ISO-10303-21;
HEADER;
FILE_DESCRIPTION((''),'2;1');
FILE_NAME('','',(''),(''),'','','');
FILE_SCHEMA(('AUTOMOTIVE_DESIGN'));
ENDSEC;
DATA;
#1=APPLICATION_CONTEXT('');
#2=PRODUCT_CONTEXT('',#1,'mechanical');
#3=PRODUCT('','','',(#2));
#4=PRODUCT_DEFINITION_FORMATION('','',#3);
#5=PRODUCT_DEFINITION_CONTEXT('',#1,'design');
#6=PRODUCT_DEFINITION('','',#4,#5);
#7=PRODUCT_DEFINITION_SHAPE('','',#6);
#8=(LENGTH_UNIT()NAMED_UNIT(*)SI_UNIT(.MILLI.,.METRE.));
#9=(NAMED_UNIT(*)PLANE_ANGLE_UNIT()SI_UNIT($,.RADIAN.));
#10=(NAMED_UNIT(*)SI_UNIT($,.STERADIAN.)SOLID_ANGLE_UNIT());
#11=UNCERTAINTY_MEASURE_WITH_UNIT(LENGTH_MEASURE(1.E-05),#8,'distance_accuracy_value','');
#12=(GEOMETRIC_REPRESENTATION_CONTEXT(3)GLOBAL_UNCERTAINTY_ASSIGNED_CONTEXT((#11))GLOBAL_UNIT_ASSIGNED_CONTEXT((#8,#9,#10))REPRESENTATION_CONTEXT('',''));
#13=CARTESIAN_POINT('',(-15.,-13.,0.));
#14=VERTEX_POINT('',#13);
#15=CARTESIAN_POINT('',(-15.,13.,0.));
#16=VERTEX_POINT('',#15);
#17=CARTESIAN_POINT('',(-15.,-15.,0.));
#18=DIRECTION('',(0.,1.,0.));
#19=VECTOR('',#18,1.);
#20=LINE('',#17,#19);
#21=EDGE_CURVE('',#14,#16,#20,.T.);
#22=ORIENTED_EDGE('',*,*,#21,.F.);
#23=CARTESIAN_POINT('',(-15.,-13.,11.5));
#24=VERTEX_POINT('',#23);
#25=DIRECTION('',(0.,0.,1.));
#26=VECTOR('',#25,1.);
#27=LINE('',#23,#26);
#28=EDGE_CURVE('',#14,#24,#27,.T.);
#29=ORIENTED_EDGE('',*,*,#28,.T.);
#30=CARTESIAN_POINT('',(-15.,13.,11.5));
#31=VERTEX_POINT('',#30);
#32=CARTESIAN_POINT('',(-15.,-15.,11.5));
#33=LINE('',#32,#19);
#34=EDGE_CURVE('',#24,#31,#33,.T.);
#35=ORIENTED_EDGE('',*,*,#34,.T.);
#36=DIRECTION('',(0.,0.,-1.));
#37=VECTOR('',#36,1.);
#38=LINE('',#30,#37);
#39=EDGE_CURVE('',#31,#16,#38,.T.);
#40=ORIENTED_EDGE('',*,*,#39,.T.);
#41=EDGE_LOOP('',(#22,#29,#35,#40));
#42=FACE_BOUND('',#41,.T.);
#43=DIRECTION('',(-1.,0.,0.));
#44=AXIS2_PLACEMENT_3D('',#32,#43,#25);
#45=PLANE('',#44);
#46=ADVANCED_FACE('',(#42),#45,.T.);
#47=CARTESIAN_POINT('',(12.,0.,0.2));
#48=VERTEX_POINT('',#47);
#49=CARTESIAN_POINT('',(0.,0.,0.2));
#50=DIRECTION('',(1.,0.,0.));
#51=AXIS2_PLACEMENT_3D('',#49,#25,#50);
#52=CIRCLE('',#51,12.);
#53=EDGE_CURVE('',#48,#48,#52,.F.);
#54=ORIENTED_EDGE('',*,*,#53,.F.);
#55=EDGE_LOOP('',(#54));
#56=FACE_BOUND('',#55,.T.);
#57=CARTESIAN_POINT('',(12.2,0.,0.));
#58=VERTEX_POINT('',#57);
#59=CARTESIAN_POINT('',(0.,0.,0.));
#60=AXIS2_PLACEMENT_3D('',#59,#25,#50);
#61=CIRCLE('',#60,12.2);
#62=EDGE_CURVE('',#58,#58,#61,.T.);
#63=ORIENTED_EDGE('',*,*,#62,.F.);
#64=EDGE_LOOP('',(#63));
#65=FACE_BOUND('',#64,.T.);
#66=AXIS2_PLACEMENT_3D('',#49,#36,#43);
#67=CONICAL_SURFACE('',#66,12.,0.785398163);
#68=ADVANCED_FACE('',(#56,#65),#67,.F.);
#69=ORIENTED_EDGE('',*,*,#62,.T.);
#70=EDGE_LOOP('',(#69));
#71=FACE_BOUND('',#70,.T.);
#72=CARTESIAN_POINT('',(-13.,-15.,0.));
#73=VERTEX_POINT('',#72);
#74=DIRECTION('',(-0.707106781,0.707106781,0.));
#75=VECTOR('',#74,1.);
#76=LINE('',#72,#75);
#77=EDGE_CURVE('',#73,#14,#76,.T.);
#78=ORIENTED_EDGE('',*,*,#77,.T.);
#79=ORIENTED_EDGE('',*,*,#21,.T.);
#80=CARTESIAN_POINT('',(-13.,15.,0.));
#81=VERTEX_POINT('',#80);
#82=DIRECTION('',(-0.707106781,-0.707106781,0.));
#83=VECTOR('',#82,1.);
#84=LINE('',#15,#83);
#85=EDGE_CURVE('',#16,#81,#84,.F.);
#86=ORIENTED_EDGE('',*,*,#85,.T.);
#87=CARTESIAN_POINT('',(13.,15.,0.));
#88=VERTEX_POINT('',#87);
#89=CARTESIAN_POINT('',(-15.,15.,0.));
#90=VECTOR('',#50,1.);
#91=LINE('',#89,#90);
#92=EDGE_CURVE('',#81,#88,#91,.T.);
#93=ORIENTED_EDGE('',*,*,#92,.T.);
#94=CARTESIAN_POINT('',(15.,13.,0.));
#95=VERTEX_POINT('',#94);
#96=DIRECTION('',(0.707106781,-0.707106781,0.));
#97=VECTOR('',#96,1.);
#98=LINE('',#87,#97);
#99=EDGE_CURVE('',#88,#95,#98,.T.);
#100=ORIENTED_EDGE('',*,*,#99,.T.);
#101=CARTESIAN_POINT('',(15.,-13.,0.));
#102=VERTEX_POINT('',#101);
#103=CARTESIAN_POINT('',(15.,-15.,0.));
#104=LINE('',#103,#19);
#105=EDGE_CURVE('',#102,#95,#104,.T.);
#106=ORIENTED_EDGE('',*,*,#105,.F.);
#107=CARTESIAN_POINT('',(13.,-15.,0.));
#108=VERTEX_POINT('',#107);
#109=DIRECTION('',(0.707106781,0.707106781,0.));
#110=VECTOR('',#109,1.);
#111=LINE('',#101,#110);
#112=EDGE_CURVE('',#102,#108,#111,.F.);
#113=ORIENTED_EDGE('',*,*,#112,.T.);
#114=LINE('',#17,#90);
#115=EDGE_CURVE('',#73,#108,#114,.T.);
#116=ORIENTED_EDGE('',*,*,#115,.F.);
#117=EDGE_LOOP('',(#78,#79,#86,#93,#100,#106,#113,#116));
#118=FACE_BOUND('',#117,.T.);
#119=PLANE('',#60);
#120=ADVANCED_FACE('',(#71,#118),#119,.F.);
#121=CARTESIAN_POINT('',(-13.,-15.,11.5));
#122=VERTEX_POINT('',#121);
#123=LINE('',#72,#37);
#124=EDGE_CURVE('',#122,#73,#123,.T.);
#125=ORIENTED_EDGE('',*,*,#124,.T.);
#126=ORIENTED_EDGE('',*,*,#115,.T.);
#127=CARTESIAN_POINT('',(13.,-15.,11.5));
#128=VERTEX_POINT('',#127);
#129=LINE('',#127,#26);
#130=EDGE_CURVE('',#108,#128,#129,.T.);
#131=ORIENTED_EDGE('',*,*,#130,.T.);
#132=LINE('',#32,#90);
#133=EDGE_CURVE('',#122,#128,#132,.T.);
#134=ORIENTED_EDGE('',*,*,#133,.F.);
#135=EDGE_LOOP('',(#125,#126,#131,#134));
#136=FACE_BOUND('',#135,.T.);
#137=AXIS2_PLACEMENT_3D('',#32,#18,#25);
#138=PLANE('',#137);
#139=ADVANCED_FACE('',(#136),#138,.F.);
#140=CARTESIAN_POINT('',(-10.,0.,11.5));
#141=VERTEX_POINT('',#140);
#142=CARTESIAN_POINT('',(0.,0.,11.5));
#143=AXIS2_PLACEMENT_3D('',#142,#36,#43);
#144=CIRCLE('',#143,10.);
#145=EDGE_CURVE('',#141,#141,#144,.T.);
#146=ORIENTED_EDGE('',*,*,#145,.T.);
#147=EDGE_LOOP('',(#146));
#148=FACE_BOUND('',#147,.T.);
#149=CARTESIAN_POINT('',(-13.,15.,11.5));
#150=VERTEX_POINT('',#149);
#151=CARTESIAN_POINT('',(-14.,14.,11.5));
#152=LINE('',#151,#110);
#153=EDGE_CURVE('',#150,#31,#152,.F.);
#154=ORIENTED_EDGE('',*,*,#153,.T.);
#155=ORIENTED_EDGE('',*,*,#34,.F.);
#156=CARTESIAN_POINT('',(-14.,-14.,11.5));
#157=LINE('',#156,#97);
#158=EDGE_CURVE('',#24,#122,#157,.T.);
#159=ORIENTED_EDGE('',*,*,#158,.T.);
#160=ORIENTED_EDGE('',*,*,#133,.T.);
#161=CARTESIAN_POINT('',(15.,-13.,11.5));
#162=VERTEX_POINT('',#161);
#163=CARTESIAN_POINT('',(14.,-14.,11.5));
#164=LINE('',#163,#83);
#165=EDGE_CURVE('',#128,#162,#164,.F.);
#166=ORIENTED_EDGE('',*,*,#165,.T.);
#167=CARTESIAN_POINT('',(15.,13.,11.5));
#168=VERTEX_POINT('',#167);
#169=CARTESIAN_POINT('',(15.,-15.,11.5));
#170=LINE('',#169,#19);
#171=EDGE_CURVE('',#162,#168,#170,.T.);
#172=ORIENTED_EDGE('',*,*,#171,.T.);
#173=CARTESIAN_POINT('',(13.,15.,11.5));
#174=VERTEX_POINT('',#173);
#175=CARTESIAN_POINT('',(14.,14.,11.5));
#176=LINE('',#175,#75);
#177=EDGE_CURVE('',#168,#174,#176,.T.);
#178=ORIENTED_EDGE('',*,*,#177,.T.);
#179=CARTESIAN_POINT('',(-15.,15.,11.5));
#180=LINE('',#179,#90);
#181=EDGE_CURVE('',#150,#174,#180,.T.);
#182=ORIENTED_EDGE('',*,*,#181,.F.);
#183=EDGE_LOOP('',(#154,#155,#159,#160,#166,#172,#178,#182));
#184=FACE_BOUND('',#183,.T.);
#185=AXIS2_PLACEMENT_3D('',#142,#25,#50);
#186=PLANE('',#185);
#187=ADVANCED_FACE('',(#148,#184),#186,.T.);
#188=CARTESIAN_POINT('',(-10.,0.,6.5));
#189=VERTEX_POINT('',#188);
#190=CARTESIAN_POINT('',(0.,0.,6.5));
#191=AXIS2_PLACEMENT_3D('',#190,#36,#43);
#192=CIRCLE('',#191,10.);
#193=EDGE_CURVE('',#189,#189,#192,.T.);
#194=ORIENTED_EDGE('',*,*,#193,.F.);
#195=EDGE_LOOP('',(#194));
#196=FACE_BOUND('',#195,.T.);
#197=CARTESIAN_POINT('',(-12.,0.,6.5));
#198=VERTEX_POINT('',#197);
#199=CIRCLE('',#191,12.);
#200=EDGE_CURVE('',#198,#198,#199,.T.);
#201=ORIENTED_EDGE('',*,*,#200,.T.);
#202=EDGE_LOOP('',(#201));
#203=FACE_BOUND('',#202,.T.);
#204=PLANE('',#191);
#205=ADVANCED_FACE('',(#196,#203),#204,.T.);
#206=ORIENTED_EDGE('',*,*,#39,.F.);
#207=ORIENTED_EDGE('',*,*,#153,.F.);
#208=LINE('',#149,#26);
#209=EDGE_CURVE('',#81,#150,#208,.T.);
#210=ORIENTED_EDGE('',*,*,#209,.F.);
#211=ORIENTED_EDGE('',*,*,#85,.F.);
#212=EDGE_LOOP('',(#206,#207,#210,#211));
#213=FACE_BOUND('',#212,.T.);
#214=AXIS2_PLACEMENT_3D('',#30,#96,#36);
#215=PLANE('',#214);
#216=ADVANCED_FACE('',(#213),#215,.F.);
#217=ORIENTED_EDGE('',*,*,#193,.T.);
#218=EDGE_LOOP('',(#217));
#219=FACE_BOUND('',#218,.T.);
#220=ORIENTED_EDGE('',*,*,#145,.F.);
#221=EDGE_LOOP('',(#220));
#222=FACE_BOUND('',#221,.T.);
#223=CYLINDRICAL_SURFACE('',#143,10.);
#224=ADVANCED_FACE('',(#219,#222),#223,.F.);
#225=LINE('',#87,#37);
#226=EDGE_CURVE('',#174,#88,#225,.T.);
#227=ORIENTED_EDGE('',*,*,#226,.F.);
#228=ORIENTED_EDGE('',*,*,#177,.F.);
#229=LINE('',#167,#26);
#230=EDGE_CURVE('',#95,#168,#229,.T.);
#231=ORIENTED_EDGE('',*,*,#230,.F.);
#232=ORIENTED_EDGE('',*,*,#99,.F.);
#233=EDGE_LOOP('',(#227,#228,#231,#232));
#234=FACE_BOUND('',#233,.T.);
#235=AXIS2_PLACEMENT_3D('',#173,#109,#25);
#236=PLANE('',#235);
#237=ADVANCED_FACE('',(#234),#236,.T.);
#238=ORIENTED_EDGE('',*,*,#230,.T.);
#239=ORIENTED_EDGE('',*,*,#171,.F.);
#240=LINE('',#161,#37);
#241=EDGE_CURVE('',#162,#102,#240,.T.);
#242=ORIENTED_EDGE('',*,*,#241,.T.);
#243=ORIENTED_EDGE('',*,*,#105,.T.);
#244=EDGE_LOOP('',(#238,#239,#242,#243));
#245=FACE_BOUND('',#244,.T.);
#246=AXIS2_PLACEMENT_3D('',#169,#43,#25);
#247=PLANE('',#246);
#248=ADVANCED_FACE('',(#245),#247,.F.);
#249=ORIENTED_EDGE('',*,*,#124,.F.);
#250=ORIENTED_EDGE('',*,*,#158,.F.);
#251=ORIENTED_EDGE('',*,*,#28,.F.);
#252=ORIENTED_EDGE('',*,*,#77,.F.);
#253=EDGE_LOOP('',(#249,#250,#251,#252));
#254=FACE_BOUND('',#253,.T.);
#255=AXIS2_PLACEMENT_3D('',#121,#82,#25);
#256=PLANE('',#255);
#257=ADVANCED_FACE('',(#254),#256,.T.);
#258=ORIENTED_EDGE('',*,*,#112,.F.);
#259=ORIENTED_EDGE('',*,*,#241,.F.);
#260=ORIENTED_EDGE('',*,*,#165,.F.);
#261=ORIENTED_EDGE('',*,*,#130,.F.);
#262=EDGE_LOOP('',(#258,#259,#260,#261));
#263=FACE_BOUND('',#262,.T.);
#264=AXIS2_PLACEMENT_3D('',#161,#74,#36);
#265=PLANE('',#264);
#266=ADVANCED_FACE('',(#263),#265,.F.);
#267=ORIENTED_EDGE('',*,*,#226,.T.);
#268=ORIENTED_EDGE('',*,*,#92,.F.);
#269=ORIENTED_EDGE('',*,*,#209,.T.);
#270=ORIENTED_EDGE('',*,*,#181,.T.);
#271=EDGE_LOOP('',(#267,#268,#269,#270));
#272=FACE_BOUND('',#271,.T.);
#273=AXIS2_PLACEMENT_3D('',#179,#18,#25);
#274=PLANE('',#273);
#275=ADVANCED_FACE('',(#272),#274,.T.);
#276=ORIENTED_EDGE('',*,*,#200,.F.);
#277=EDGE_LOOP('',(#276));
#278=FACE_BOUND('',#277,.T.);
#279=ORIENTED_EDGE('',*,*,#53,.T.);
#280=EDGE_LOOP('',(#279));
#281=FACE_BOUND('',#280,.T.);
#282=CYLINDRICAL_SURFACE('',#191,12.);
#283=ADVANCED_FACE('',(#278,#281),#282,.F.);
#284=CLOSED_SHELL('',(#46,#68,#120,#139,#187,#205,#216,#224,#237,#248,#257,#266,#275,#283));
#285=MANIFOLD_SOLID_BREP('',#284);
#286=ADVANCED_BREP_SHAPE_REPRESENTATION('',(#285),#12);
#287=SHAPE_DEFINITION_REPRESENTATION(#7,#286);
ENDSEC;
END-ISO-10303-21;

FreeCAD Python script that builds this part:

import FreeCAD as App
import Part
import Sketcher

V = App.Vector


def edges_at(feature, points):
    """Names of the edges that pass closest to the given points."""
    edges = feature.Shape.Edges
    near = lambda p: min(range(len(edges)), key=lambda i: edges[i].distToShape(Part.Vertex(*p))[0])
    return sorted({f"Edge{near(p) + 1}" for p in points})

doc = App.newDocument("Part")
body = doc.addObject("PartDesign::Body", "Body")

sketch1 = doc.addObject("Sketcher::SketchObject", "Sketch")
body.addObject(sketch1)
sketch1.AttachmentSupport = (doc.XY_Plane, [""])
sketch1.MapMode = "FlatFace"
sketch1.addGeometry([
    Part.LineSegment(V(-15, 15, 0), V(-15, -15, 0)),
    Part.LineSegment(V(-15, -15, 0), V(15, -15, 0)),
    Part.LineSegment(V(15, -15, 0), V(15, 15, 0)),
    Part.LineSegment(V(15, 15, 0), V(-15, 15, 0)),
], False)
sketch1.addConstraint([
    Sketcher.Constraint("Coincident", 0, 2, 1, 1),
    Sketcher.Constraint("Coincident", 1, 2, 2, 1),
    Sketcher.Constraint("Coincident", 2, 2, 3, 1),
    Sketcher.Constraint("Coincident", 3, 2, 0, 1),
    Sketcher.Constraint("Vertical", 0),
    Sketcher.Constraint("Horizontal", 1),
    Sketcher.Constraint("Vertical", 2),
    Sketcher.Constraint("Horizontal", 3),
    Sketcher.Constraint("Symmetric", 0, 2, 2, 2, -1, 1),
    Sketcher.Constraint("Equal", 3, 0),
    Sketcher.Constraint("DistanceX", 1, 1, 1, 2, 30.0),
])
pad1 = doc.addObject("PartDesign::Pad", "Pad")
body.addObject(pad1)
pad1.Profile = sketch1
pad1.Length = 11.5

sketch2 = doc.addObject("Sketcher::SketchObject", "Sketch001")
body.addObject(sketch2)
sketch2.AttachmentSupport = (doc.XY_Plane, [""])
sketch2.MapMode = "FlatFace"
sketch2.addGeometry(Part.Circle(V(0, 0, 0), V(0, 0, 1), 12), False)
sketch2.addConstraint([
    Sketcher.Constraint("Coincident", 0, 3, -1, 1),
    Sketcher.Constraint("Diameter", 0, 24.0),
])
pocket1 = doc.addObject("PartDesign::Pocket", "Pocket")
body.addObject(pocket1)
pocket1.Profile = sketch2
pocket1.Length = 6.5
pocket1.Reversed = True

sketch3 = doc.addObject("Sketcher::SketchObject", "Sketch002")
body.addObject(sketch3)
sketch3.AttachmentSupport = (doc.XY_Plane, [""])
sketch3.MapMode = "FlatFace"
sketch3.AttachmentOffset = App.Placement(V(0, 0, 6.5), App.Rotation())
sketch3.addGeometry(Part.Circle(V(0, 0, 0), V(0, 0, 1), 10), False)
sketch3.addConstraint([
    Sketcher.Constraint("Coincident", 0, 3, -1, 1),
    Sketcher.Constraint("Diameter", 0, 20.0),
])
pocket2 = doc.addObject("PartDesign::Pocket", "Pocket001")
body.addObject(pocket2)
pocket2.Profile = sketch3
pocket2.Type = "ThroughAll"
pocket2.Reversed = True
doc.recompute()

chamfer = doc.addObject("PartDesign::Chamfer", "Chamfer")
body.addObject(chamfer)
chamfer.Base = (pocket2, edges_at(pocket2, [
    (-15, -15, 5.75),
    (-15, 15, 5.75),
    (15, 15, 5.75),
    (15, -15, 5.75),
]))
chamfer.Size = 2
doc.recompute()

chamfer2 = doc.addObject("PartDesign::Chamfer", "Chamfer001")
body.addObject(chamfer2)
chamfer2.Base = (chamfer, edges_at(chamfer, [(12, 0, 0)]))
chamfer2.Size = 0.2

doc.recompute()
